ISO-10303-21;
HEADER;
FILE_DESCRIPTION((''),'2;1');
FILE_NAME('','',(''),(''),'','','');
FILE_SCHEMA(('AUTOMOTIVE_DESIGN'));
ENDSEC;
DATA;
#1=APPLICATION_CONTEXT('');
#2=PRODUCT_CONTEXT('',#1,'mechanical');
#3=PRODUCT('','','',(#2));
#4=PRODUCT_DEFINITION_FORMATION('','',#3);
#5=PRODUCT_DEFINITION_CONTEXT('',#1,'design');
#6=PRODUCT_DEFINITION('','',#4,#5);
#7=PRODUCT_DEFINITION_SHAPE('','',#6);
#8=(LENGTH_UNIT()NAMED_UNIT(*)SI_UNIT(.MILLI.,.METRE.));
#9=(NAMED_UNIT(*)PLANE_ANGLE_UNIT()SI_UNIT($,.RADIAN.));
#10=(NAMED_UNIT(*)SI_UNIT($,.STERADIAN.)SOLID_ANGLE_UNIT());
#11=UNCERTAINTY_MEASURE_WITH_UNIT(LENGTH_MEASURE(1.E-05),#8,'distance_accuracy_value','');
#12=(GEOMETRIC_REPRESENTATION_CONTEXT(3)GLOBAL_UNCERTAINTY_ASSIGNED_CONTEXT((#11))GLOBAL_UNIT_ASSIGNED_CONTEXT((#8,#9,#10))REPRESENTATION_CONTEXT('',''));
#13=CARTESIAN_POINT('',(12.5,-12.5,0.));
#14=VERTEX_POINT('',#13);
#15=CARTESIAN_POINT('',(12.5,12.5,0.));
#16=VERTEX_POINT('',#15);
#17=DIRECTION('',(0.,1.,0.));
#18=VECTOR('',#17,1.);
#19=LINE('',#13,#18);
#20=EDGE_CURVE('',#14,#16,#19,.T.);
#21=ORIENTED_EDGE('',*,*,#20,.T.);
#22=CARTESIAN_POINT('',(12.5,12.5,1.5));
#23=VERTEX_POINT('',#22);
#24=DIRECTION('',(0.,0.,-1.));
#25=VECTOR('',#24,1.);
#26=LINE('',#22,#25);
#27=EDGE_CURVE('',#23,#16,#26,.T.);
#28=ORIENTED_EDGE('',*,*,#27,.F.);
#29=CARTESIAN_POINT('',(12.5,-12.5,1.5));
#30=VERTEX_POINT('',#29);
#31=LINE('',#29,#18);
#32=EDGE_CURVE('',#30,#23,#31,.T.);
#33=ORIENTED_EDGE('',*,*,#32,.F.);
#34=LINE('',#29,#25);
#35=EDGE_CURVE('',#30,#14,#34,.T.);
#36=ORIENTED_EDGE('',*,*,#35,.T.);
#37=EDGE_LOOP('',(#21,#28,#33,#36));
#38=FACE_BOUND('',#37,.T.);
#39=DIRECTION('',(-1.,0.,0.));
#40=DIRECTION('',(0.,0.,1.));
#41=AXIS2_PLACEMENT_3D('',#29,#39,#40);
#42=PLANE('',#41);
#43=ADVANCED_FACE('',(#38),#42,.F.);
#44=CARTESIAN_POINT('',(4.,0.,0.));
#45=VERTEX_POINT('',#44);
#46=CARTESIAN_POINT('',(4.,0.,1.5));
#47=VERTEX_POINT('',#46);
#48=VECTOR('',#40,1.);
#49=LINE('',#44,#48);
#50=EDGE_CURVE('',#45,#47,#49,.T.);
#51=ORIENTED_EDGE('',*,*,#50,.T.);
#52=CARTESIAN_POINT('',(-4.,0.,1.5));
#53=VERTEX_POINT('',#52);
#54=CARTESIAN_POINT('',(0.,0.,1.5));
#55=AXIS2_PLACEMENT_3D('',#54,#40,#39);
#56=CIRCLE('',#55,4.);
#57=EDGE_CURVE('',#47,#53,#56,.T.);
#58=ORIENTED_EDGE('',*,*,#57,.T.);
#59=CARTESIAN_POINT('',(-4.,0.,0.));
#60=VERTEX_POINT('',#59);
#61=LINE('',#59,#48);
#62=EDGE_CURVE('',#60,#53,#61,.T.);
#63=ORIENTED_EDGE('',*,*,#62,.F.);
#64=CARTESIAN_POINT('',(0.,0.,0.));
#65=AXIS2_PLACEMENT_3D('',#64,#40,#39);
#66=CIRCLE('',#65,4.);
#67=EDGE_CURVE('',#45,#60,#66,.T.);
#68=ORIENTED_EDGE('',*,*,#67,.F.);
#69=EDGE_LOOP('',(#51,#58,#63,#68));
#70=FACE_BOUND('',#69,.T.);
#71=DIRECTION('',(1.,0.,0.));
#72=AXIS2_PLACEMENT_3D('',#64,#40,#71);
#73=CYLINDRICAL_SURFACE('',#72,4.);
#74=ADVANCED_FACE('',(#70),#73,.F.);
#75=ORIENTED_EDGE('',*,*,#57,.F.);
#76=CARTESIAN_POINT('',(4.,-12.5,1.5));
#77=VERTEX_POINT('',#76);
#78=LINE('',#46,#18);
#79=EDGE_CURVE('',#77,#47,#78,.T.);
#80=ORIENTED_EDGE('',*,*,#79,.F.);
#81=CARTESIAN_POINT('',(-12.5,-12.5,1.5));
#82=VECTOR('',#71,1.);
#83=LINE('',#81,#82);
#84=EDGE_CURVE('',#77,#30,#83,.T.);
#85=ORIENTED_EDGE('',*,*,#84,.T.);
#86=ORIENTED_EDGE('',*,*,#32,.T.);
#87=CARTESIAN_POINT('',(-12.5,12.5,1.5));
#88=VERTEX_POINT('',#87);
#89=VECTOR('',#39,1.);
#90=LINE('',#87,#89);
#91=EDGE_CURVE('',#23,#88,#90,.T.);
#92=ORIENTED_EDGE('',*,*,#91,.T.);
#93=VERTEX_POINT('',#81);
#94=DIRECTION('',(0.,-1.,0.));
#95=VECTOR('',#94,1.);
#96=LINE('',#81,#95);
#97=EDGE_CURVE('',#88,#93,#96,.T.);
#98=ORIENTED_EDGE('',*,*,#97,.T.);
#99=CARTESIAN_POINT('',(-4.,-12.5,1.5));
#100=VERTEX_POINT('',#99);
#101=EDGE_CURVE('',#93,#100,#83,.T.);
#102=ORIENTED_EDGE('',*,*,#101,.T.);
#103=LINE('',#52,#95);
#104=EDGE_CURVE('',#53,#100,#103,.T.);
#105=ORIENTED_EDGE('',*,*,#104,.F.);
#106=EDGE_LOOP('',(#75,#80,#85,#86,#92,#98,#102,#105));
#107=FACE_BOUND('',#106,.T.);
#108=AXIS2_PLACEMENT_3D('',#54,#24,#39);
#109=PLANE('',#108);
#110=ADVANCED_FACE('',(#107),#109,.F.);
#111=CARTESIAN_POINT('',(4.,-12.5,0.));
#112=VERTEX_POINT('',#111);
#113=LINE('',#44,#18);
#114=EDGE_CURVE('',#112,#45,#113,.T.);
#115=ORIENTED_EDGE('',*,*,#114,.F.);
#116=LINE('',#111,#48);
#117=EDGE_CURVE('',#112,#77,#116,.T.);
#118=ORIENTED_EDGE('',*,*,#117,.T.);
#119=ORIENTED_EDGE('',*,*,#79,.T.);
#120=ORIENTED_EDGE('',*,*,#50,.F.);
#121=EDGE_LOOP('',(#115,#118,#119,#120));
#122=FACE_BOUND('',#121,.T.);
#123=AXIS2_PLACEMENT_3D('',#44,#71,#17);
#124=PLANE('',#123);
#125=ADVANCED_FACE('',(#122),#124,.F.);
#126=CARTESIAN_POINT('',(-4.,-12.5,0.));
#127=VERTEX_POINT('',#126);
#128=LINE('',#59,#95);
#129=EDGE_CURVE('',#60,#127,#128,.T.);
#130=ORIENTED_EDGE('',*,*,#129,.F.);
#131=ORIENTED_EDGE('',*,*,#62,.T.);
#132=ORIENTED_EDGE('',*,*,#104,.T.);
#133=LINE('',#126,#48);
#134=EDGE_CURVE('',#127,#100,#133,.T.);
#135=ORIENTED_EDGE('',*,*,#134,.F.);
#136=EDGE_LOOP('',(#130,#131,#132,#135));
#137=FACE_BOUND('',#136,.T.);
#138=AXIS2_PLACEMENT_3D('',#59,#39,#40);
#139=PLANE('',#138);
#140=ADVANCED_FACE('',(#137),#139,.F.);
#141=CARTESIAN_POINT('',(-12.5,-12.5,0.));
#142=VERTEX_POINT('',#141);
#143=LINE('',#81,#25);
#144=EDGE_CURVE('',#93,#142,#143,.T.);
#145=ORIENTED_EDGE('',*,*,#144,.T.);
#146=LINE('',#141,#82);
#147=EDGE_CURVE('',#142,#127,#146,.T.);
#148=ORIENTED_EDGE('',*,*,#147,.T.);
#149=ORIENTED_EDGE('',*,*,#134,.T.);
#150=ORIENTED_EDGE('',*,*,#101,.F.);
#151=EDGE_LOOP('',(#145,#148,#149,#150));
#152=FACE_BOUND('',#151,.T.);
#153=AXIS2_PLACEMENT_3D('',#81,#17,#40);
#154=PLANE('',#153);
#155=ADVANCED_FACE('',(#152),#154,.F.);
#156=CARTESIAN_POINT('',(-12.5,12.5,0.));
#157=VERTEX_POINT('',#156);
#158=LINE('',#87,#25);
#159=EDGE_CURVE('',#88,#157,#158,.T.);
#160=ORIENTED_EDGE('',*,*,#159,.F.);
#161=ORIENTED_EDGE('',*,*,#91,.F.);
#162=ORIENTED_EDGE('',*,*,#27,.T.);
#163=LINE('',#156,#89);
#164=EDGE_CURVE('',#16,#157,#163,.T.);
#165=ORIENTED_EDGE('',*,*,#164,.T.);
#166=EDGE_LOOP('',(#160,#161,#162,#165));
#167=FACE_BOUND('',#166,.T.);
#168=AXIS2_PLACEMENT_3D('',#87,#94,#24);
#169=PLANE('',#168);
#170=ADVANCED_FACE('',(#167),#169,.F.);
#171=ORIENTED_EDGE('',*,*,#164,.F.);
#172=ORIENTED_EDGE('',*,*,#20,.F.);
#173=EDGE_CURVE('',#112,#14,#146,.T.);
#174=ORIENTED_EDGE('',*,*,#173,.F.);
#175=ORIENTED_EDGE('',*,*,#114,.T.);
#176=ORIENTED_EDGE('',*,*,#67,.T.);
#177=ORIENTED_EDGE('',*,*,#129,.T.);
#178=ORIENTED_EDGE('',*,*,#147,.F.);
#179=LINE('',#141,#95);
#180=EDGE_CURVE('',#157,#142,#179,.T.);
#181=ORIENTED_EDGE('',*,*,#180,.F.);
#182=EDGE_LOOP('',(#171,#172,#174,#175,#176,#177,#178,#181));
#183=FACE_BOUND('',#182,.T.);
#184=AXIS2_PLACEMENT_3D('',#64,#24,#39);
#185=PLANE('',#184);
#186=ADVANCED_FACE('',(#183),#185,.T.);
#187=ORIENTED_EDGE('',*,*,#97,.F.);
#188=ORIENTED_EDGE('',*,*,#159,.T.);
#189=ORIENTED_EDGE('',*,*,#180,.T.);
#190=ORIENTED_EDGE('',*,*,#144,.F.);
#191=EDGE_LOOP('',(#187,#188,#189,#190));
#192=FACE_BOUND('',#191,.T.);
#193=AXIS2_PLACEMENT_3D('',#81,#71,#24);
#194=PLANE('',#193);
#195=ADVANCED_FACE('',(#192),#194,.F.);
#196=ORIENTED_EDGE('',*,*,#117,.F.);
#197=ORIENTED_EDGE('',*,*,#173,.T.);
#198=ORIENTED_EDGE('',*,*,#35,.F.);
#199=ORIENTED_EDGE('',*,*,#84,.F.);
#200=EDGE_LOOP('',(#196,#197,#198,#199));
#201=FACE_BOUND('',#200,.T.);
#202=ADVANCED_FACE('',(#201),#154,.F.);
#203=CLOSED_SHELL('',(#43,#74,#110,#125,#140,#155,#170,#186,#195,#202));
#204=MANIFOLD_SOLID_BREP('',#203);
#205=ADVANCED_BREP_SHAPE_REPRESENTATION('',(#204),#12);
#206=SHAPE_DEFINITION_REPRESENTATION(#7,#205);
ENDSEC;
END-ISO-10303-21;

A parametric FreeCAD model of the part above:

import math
import FreeCAD as App
import Part
import Sketcher
from FreeCAD import Vector
Q = App.Units.Quantity


def add_polygon(sketch, points):
    """Adds a closed chain of lines whose ends are joined by coincident constraints."""
    first, n = sketch.GeometryCount, len(points)
    for a, b in zip(points, points[1:] + points[:1]):
        sketch.addGeometry(Part.LineSegment(App.Vector(*a, 0), App.Vector(*b, 0)), False)
    for i in range(n):
        sketch.addConstraint(Sketcher.Constraint("Coincident", first + i, 2, first + (i + 1) % n, 1))

doc = App.newDocument("Part")
params = doc.addObject("Spreadsheet::Sheet", "Params")
for row, (alias, value) in enumerate([
    ("sketch1_width", "25 mm"),
    ("pad1_length", "1.5 mm"),
    ("sketch2_radius", "4 mm"),
    ("sketch2_height", "12.5 mm"),
], start=1):
    params.set(f"A{row}", alias)
    params.set(f"B{row}", "=" + value)
    params.setAlias(f"B{row}", alias)

body = doc.addObject("PartDesign::Body", "Body")

# Sketch on XY plane
sketch1 = body.newObject("Sketcher::SketchObject", "Sketch")
sketch1.AttachmentSupport = (doc.getObject("XY_Plane"), [""])
sketch1.MapMode = "FlatFace"
add_polygon(sketch1, [(-12, 12), (-12, -12), (12, -12), (12, 12)])  # lines 0-3
sketch1.addConstraint(Sketcher.Constraint("Vertical", 0))
sketch1.addConstraint(Sketcher.Constraint("Horizontal", 1))
sketch1.addConstraint(Sketcher.Constraint("Vertical", 2))
sketch1.addConstraint(Sketcher.Constraint("Horizontal", 3))
sketch1.addConstraint(Sketcher.Constraint("Symmetric", 0, 2, 2, 2, -1, 1))
sketch1.addConstraint(Sketcher.Constraint("Equal", 3, 0))
sketch1.addConstraint(Sketcher.Constraint("DistanceX", 1, 1, 1, 2, Q("25 mm")))
sketch1.setExpression("Constraints[10]", "Params.sketch1_width")
pad1 = body.newObject("PartDesign::Pad", "Pad")
pad1.Profile = sketch1
pad1.setExpression("Length", "Params.pad1_length")

# Sketch on XY plane
sketch2 = body.newObject("Sketcher::SketchObject", "Sketch001")
sketch2.AttachmentSupport = (doc.getObject("XY_Plane"), [""])
sketch2.MapMode = "FlatFace"
sketch2.AttachmentOffset = App.Placement(Vector(0, 0, 1.5), App.Rotation())
sketch2.addGeometry(Part.LineSegment(Vector(-4, 0, 0), Vector(-4, -12.5, 0)), False)
sketch2.addGeometry(Part.LineSegment(Vector(-4, -12.5, 0), Vector(4, -12.5, 0)), False)
sketch2.addGeometry(Part.LineSegment(Vector(4, -12.5, 0), Vector(4, 0, 0)), False)
sketch2.addGeometry(Part.ArcOfCircle(Part.Circle(Vector(0, 0, 0), Vector(0, 0, 1), 4), math.radians(0), math.radians(180)), False)
sketch2.addConstraint(Sketcher.Constraint("Coincident", 0, 2, 1, 1))
sketch2.addConstraint(Sketcher.Constraint("Coincident", 1, 2, 2, 1))
sketch2.addConstraint(Sketcher.Constraint("Tangent", 2, 2, 3, 1))
sketch2.addConstraint(Sketcher.Constraint("Tangent", 3, 2, 0, 1))
sketch2.addConstraint(Sketcher.Constraint("Vertical", 0))
sketch2.addConstraint(Sketcher.Constraint("Horizontal", 1))
sketch2.addConstraint(Sketcher.Constraint("Vertical", 2))
sketch2.addConstraint(Sketcher.Constraint("Coincident", 3, 3, -1, 1))
sketch2.addConstraint(Sketcher.Constraint("Radius", 3, Q("4 mm")))
sketch2.addConstraint(Sketcher.Constraint("DistanceY", 0, 2, 0, 1, Q("12.5 mm")))
sketch2.setExpression("Constraints[8]", "Params.sketch2_radius")
sketch2.setExpression("Constraints[9]", "Params.sketch2_height")
pocket1 = body.newObject("PartDesign::Pocket", "Pocket")
pocket1.Profile = sketch2
pocket1.Type = "ThroughAll"

doc.recompute()
